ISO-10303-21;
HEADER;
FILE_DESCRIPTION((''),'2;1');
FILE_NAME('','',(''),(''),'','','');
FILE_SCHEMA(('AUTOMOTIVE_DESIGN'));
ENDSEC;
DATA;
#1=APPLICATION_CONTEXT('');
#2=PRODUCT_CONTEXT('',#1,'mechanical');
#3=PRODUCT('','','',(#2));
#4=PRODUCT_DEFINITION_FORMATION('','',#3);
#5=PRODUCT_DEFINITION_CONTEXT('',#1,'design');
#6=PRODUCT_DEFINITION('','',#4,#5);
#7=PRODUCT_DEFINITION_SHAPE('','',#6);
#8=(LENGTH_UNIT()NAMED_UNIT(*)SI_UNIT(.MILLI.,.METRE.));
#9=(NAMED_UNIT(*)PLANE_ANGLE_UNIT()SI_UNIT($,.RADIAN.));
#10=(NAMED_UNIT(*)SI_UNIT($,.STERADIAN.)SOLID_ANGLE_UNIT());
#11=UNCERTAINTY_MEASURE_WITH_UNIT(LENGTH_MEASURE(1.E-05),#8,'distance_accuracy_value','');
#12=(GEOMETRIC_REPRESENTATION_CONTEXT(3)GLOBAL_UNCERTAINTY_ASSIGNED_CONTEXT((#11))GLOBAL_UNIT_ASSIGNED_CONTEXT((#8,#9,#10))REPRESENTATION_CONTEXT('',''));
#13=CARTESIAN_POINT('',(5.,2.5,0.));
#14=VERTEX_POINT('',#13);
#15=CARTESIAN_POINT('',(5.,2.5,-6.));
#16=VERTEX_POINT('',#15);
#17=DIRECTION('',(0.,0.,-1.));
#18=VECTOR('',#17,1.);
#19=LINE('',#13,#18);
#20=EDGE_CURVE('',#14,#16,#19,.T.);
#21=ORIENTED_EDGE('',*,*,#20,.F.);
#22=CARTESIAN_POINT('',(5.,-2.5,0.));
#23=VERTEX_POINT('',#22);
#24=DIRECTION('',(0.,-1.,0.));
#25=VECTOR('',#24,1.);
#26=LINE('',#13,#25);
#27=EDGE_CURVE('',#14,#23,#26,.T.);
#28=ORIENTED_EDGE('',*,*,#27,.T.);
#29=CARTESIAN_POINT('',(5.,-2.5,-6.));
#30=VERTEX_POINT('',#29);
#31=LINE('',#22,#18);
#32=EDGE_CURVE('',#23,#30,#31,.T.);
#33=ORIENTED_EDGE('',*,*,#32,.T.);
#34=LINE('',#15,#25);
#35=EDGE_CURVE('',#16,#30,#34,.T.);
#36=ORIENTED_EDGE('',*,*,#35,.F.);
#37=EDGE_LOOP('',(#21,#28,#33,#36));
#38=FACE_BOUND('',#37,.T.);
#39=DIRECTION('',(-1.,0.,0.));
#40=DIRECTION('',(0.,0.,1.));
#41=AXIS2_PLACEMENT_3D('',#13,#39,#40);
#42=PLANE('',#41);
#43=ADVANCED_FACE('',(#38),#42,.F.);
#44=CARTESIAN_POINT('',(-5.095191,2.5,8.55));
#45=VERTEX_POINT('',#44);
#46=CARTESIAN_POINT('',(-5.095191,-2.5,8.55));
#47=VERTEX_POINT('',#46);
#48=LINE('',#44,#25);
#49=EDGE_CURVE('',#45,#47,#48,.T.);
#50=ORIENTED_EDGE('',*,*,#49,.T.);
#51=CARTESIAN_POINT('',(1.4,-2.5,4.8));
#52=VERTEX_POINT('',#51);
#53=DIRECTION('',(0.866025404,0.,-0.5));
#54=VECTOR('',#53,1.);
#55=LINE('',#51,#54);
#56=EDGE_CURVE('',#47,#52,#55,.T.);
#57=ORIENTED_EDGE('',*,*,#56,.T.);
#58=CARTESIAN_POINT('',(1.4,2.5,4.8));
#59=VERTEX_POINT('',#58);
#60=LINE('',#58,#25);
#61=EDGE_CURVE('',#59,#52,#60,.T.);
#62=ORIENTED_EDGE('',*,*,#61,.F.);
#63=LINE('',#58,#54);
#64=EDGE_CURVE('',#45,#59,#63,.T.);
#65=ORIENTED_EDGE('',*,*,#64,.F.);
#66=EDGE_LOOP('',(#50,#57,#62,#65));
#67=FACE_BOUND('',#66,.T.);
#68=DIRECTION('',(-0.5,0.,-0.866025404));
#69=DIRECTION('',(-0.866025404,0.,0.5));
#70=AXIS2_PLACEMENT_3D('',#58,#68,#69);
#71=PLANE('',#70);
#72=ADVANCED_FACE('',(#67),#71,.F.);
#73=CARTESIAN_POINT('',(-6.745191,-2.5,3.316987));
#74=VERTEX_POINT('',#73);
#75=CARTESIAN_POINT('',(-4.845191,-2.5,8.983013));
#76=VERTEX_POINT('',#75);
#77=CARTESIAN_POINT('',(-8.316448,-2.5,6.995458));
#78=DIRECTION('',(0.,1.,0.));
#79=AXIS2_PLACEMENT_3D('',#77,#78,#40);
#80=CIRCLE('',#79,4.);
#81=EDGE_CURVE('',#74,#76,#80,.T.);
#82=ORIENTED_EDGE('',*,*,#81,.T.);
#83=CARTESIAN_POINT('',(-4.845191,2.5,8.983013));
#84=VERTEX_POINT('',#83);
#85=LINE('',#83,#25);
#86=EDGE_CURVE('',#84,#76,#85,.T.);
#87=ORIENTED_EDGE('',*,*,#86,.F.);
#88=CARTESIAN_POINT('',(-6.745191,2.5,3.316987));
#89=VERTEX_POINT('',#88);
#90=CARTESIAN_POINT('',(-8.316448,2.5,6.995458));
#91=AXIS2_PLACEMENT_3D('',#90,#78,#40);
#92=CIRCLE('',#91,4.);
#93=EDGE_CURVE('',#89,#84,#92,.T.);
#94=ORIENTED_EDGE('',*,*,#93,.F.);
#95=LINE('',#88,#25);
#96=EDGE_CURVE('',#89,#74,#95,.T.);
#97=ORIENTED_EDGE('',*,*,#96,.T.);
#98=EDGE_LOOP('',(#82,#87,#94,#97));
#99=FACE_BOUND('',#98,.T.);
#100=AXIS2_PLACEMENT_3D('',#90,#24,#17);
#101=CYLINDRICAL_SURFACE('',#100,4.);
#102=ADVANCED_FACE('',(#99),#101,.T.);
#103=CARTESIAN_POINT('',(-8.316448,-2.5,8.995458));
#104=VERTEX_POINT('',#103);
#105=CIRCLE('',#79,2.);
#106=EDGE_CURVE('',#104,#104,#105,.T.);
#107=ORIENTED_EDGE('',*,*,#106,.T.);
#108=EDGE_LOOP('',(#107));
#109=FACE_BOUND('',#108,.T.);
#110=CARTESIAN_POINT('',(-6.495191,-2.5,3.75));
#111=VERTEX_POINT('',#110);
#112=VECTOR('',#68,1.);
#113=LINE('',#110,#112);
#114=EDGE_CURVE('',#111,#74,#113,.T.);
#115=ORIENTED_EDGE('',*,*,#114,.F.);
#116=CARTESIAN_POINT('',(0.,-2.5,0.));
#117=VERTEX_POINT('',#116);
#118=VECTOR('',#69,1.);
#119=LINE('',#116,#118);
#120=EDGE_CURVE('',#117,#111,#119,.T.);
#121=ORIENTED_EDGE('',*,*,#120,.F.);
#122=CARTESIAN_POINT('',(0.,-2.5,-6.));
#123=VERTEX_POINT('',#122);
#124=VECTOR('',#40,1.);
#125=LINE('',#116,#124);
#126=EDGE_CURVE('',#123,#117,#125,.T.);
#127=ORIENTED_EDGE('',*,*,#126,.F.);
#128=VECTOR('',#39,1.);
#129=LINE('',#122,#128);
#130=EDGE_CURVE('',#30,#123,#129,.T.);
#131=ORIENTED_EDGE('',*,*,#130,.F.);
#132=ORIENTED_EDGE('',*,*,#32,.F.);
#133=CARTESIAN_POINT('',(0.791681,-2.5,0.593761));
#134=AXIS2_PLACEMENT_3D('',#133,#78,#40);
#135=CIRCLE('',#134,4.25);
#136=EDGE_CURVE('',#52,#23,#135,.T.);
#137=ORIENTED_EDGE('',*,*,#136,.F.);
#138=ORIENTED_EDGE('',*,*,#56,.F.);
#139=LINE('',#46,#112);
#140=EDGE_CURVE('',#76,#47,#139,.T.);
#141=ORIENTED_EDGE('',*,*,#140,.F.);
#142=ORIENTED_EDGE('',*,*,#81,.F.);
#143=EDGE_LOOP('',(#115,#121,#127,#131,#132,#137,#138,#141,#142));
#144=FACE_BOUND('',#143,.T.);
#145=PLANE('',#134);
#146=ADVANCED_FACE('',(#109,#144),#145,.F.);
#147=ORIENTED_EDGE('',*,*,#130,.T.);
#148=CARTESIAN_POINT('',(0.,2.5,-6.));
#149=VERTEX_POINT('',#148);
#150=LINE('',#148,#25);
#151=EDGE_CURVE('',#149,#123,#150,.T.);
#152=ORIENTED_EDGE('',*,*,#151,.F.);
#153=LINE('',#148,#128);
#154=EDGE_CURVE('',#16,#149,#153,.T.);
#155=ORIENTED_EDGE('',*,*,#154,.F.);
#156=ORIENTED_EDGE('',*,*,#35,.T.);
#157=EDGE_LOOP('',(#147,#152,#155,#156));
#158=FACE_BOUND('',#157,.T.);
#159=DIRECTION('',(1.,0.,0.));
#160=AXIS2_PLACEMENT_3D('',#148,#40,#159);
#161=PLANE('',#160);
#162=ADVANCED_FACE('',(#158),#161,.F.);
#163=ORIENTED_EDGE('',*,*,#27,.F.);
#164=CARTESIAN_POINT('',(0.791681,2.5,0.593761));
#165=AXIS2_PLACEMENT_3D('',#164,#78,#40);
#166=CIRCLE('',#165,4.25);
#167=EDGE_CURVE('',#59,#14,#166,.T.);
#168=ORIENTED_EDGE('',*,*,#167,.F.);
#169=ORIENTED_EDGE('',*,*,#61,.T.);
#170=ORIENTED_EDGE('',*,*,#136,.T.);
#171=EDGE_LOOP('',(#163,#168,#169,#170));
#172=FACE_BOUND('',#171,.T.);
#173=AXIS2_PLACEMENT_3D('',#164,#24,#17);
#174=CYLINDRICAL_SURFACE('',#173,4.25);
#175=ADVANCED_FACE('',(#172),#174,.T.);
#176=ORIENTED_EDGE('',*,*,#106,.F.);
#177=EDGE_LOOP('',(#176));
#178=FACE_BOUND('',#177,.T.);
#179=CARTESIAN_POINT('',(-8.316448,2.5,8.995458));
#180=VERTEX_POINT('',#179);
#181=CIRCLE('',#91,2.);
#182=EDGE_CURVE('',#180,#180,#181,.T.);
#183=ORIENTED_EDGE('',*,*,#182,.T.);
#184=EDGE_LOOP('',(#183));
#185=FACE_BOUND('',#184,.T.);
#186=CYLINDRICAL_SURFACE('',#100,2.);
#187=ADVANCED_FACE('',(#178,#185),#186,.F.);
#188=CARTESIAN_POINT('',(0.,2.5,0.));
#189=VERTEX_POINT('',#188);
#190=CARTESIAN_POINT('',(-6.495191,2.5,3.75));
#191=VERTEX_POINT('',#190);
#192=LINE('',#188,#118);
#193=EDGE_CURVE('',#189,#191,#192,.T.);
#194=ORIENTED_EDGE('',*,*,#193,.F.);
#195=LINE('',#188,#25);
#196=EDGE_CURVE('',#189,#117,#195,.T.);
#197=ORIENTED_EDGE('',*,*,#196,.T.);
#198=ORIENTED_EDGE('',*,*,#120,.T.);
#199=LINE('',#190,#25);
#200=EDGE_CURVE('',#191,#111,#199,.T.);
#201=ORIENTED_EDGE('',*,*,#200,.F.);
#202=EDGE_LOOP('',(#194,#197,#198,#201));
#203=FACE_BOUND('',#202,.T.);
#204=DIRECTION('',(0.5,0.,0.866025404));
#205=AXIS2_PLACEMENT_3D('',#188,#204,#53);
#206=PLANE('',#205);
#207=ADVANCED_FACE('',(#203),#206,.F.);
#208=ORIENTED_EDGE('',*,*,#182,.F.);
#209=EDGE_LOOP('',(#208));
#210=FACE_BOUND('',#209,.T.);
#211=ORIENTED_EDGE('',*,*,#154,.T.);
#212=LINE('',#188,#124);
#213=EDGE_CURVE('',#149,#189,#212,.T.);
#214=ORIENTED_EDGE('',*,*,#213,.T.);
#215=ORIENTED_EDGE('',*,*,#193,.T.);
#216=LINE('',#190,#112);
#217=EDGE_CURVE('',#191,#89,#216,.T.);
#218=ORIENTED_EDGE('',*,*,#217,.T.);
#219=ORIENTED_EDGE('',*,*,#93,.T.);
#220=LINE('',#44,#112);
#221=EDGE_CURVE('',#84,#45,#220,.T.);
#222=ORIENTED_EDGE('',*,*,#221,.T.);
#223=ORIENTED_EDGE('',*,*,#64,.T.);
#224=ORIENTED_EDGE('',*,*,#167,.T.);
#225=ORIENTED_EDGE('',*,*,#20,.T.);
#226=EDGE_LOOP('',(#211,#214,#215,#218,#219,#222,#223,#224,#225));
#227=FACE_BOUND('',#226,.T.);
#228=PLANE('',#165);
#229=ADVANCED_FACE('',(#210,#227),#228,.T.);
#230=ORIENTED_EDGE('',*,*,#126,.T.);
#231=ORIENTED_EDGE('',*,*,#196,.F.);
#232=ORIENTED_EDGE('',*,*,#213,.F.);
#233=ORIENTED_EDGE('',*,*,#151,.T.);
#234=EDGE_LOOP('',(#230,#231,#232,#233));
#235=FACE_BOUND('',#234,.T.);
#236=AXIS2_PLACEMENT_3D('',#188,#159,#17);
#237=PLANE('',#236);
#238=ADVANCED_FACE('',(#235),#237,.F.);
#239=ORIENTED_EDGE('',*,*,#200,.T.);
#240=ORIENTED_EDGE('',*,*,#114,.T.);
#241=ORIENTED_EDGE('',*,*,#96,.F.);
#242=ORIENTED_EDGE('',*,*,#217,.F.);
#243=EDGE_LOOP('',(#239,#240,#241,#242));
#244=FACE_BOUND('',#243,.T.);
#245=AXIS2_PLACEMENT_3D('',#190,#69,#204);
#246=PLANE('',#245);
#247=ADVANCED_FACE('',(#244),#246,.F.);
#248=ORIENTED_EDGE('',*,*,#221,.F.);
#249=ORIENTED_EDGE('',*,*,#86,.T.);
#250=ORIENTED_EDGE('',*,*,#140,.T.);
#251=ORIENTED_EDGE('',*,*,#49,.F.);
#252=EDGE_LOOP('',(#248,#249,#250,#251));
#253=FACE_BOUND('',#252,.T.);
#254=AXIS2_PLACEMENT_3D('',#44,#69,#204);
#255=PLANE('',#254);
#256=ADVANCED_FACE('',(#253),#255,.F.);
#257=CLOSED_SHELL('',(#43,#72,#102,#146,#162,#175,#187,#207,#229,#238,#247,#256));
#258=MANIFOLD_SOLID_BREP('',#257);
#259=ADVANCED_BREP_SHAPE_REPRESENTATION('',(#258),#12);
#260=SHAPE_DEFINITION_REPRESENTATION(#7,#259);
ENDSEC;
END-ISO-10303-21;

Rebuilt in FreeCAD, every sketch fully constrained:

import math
import FreeCAD as App
import Part
import Sketcher
from FreeCAD import Vector
Q = App.Units.Quantity

doc = App.newDocument("Part")
params = doc.addObject("Spreadsheet::Sheet", "Params")
for row, (alias, value) in enumerate([
    ("sketch1_diameter", "4 mm"),
    ("sketch1_radius", "4 mm"),
    ("sketch1_width", "5 mm"),
    ("sketch1_height", "6 mm"),
    ("sketch1_radius2", "4.25 mm"),
    ("pad1_length", "5 mm"),
], start=1):
    params.set(f"A{row}", alias)
    params.set(f"B{row}", "=" + value)
    params.setAlias(f"B{row}", alias)

body = doc.addObject("PartDesign::Body", "Body")

# Sketch on XZ plane
sketch1 = body.newObject("Sketcher::SketchObject", "Sketch")
sketch1.AttachmentSupport = (doc.getObject("XZ_Plane"), [""])
sketch1.MapMode = "FlatFace"
sketch1.addGeometry([
    Part.LineSegment(Vector(0, 0, 0), Vector(-6.5, 3.8, 0)),  # 0
    Part.LineSegment(Vector(-6.5, 3.8, 0), Vector(-6.7, 3.3, 0)),  # 1
    Part.ArcOfCircle(Part.Circle(Vector(-8.3, 7, 0), Vector(0, 0, 1), 4), math.radians(30), math.radians(293)),  # 2
    Part.LineSegment(Vector(-4.8, 9, 0), Vector(-5.1, 8.6, 0)),  # 3
    Part.LineSegment(Vector(-5.1, 8.6, 0), Vector(1.4, 4.8, 0)),  # 4
    Part.ArcOfCircle(Part.Circle(Vector(0.8, 0.6, 0), Vector(0, 0, 1), 4.3), math.radians(-8), math.radians(82)),  # 5
    Part.LineSegment(Vector(5, 0, 0), Vector(5, -6, 0)),  # 6
    Part.LineSegment(Vector(5, -6, 0), Vector(0, -6, 0)),  # 7
    Part.LineSegment(Vector(0, -6, 0), Vector(0, 0, 0)),  # 8
    Part.Circle(Vector(-8.3, 7, 0), Vector(0, 0, 1), 2),  # 9
], False)
sketch1.addConstraint([
    Sketcher.Constraint("Coincident", 0, 2, 1, 1),
    Sketcher.Constraint("Coincident", 1, 2, 2, 2),
    Sketcher.Constraint("Coincident", 2, 1, 3, 1),
    Sketcher.Constraint("Coincident", 3, 2, 4, 1),
    Sketcher.Constraint("Coincident", 4, 2, 5, 2),
    Sketcher.Constraint("Coincident", 5, 1, 6, 1),
    Sketcher.Constraint("Coincident", 6, 2, 7, 1),
    Sketcher.Constraint("Coincident", 7, 2, 8, 1),
    Sketcher.Constraint("Coincident", 8, 2, 0, 1),
    Sketcher.Constraint("Vertical", 6),
    Sketcher.Constraint("Horizontal", 7),
    Sketcher.Constraint("Vertical", 8),
    Sketcher.Constraint("Coincident", 8, 2, -1, 1),
    Sketcher.Constraint("Coincident", 9, 3, 2, 3),
    Sketcher.Constraint("PointOnObject", 5, 1, -1),
    Sketcher.Constraint("Perpendicular", 0, 1),
    Sketcher.Constraint("Parallel", 1, 3),
    Sketcher.Constraint("Perpendicular", 3, 4),
    Sketcher.Constraint("Equal", 1, 3),
    Sketcher.Constraint("Equal", 0, 4),
    Sketcher.Constraint("Diameter", 9, 4.0),
    Sketcher.Constraint("Radius", 2, 4.0),
    Sketcher.Constraint("DistanceX", 7, 2, 7, 1, 5.0),
    Sketcher.Constraint("DistanceY", 6, 2, 6, 1, 6.0),
    Sketcher.Constraint("Angle", 0, Q("150 deg")),
    Sketcher.Constraint("Radius", 5, 4.25),
    Sketcher.Constraint("Distance", 0, 7.5),
    Sketcher.Constraint("Distance", 1, 0.5),
    Sketcher.Constraint("DistanceX", -1, 1, 4, 2, 1.4),
    Sketcher.Constraint("DistanceY", -1, 1, 4, 2, 4.8),
])
sketch1.setExpression("Constraints[20]", "Params.sketch1_diameter")
sketch1.setExpression("Constraints[21]", "Params.sketch1_radius")
sketch1.setExpression("Constraints[22]", "Params.sketch1_width")
sketch1.setExpression("Constraints[23]", "Params.sketch1_height")
sketch1.setExpression("Constraints[25]", "Params.sketch1_radius2")
pad1 = body.newObject("PartDesign::Pad", "Pad")
pad1.Profile = sketch1
pad1.setExpression("Length", "Params.pad1_length")
pad1.Midplane = True

doc.recompute()
